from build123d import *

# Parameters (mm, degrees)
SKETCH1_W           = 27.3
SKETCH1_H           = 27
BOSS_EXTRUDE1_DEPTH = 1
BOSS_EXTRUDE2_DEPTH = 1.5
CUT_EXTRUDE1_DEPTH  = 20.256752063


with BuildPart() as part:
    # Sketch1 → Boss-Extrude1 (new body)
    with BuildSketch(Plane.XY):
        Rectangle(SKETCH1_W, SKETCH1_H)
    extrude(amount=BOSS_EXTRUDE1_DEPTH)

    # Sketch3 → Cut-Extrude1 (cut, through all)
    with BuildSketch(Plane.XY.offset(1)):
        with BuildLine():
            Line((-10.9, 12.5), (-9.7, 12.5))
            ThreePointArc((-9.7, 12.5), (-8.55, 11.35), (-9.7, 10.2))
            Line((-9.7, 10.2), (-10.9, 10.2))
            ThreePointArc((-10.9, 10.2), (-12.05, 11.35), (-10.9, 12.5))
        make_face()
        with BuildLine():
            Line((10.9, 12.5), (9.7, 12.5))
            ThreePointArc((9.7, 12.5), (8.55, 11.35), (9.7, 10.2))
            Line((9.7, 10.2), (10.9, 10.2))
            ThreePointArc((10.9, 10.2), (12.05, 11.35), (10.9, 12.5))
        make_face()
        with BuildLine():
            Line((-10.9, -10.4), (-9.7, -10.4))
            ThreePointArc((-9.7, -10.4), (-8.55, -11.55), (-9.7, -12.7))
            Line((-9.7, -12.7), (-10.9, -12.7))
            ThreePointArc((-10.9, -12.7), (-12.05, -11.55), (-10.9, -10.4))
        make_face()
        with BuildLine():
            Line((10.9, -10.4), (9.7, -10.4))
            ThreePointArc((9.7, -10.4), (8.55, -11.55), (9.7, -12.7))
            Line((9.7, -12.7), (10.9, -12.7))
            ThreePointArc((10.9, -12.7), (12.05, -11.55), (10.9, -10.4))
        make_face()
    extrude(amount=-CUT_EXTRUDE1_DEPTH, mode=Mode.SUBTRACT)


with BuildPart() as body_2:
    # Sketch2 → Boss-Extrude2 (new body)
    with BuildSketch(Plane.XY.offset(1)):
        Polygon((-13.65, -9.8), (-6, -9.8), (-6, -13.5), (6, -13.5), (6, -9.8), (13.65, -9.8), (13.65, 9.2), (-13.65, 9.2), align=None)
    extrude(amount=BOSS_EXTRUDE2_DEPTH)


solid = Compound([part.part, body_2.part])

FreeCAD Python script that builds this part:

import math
import FreeCAD as App
import Part
import Sketcher
from FreeCAD import Vector
Q = App.Units.Quantity


def add_polygon(sketch, points):
    """Adds a closed chain of lines whose ends are joined by coincident constraints."""
    first, n = sketch.GeometryCount, len(points)
    for a, b in zip(points, points[1:] + points[:1]):
        sketch.addGeometry(Part.LineSegment(App.Vector(*a, 0), App.Vector(*b, 0)), False)
    for i in range(n):
        sketch.addConstraint(Sketcher.Constraint("Coincident", first + i, 2, first + (i + 1) % n, 1))

doc = App.newDocument("Part")
params = doc.addObject("Spreadsheet::Sheet", "Params")
for row, (alias, value) in enumerate([
    ("sketch1_height", "27 mm"),
    ("sketch1_width", "27.3 mm"),
    ("pad1_length", "1 mm"),
    ("sketch2_radius", "1.15 mm"),
    ("sketch2_width", "1.2 mm"),
    ("sketch3_width", "12 mm"),
    ("sketch3_height", "19 mm"),
    ("sketch3_width2", "27.3 mm"),
    ("sketch3_height2", "3.7 mm"),
    ("pad2_length", "1.5 mm"),
], start=1):
    params.set(f"A{row}", alias)
    params.set(f"B{row}", "=" + value)
    params.setAlias(f"B{row}", alias)

body = doc.addObject("PartDesign::Body", "Body")

# Sketch on XY plane
sketch1 = body.newObject("Sketcher::SketchObject", "Sketch")
sketch1.AttachmentSupport = (doc.getObject("XY_Plane"), [""])
sketch1.MapMode = "FlatFace"
add_polygon(sketch1, [(-14, 14), (-14, -14), (14, -14), (14, 14)])  # lines 0-3
sketch1.addConstraint([
    Sketcher.Constraint("Vertical", 0),
    Sketcher.Constraint("Horizontal", 1),
    Sketcher.Constraint("Vertical", 2),
    Sketcher.Constraint("Horizontal", 3),
    Sketcher.Constraint("Symmetric", 0, 2, 2, 2, -1, 1),
    Sketcher.Constraint("DistanceY", 0, 2, 0, 1, Q("27 mm")),
    Sketcher.Constraint("DistanceX", 1, 1, 1, 2, Q("27.3 mm")),
])
sketch1.setExpression("Constraints[9]", "Params.sketch1_height")
sketch1.setExpression("Constraints[10]", "Params.sketch1_width")
pad1 = body.newObject("PartDesign::Pad", "Pad")
pad1.Profile = sketch1
pad1.setExpression("Length", "Params.pad1_length")

# Sketch on XY plane
sketch2 = body.newObject("Sketcher::SketchObject", "Sketch001")
sketch2.AttachmentSupport = (doc.getObject("XY_Plane"), [""])
sketch2.MapMode = "FlatFace"
sketch2.AttachmentOffset = App.Placement(Vector(0, 0, 1), App.Rotation())
sketch2.addGeometry([
    Part.LineSegment(Vector(-9.7, 12.5, 0), Vector(-10.9, 12.5, 0)),  # 0
    Part.ArcOfCircle(Part.Circle(Vector(-10.9, 11.3, 0), Vector(0, 0, 1), 1.1), math.radians(90), math.radians(270)),  # 1
    Part.LineSegment(Vector(-10.9, 10.2, 0), Vector(-9.7, 10.2, 0)),  # 2
    Part.ArcOfCircle(Part.Circle(Vector(-9.7, 11.3, 0), Vector(0, 0, 1), 1.1), math.radians(-90), math.radians(90)),  # 3
    Part.LineSegment(Vector(10.9, 12.5, 0), Vector(9.7, 12.5, 0)),  # 4
    Part.ArcOfCircle(Part.Circle(Vector(9.7, 11.3, 0), Vector(0, 0, 1), 1.1), math.radians(90), math.radians(270)),  # 5
    Part.LineSegment(Vector(9.7, 10.2, 0), Vector(10.9, 10.2, 0)),  # 6
    Part.ArcOfCircle(Part.Circle(Vector(10.9, 11.3, 0), Vector(0, 0, 1), 1.1), math.radians(-90), math.radians(90)),  # 7
    Part.LineSegment(Vector(-9.7, -10.4, 0), Vector(-10.9, -10.4, 0)),  # 8
    Part.ArcOfCircle(Part.Circle(Vector(-10.9, -11.6, 0), Vector(0, 0, 1), 1.1), math.radians(90), math.radians(270)),  # 9
    Part.LineSegment(Vector(-10.9, -12.7, 0), Vector(-9.7, -12.7, 0)),  # 10
    Part.ArcOfCircle(Part.Circle(Vector(-9.7, -11.6, 0), Vector(0, 0, 1), 1.1), math.radians(-90), math.radians(90)),  # 11
    Part.LineSegment(Vector(10.9, -10.4, 0), Vector(9.7, -10.4, 0)),  # 12
    Part.ArcOfCircle(Part.Circle(Vector(9.7, -11.6, 0), Vector(0, 0, 1), 1.1), math.radians(90), math.radians(270)),  # 13
    Part.LineSegment(Vector(9.7, -12.7, 0), Vector(10.9, -12.7, 0)),  # 14
    Part.ArcOfCircle(Part.Circle(Vector(10.9, -11.6, 0), Vector(0, 0, 1), 1.1), math.radians(-90), math.radians(90)),  # 15
], False)
sketch2.addConstraint([
    Sketcher.Constraint("Tangent", 0, 2, 1, 1),
    Sketcher.Constraint("Tangent", 1, 2, 2, 1),
    Sketcher.Constraint("Tangent", 2, 2, 3, 1),
    Sketcher.Constraint("Tangent", 3, 2, 0, 1),
    Sketcher.Constraint("Tangent", 4, 2, 5, 1),
    Sketcher.Constraint("Tangent", 5, 2, 6, 1),
    Sketcher.Constraint("Tangent", 6, 2, 7, 1),
    Sketcher.Constraint("Tangent", 7, 2, 4, 1),
    Sketcher.Constraint("Tangent", 8, 2, 9, 1),
    Sketcher.Constraint("Tangent", 9, 2, 10, 1),
    Sketcher.Constraint("Tangent", 10, 2, 11, 1),
    Sketcher.Constraint("Tangent", 11, 2, 8, 1),
    Sketcher.Constraint("Tangent", 12, 2, 13, 1),
    Sketcher.Constraint("Tangent", 13, 2, 14, 1),
    Sketcher.Constraint("Tangent", 14, 2, 15, 1),
    Sketcher.Constraint("Tangent", 15, 2, 12, 1),
    Sketcher.Constraint("Horizontal", 0),
    Sketcher.Constraint("Horizontal", 2),
    Sketcher.Constraint("Horizontal", 4),
    Sketcher.Constraint("Horizontal", 6),
    Sketcher.Constraint("Horizontal", 8),
    Sketcher.Constraint("Horizontal", 10),
    Sketcher.Constraint("Horizontal", 12),
    Sketcher.Constraint("Horizontal", 14),
    Sketcher.Constraint("Equal", 3, 5),
    Sketcher.Constraint("Equal", 7, 9),
    Sketcher.Constraint("Equal", 11, 13),
    Sketcher.Constraint("Symmetric", 3, 3, 5, 3, -2),
    Sketcher.Constraint("Symmetric", 11, 3, 13, 3, -2),
    Sketcher.Constraint("Vertical", 1, 3, 9, 3),
    Sketcher.Constraint("Vertical", 3, 3, 11, 3),
    Sketcher.Constraint("Vertical", 7, 3, 15, 3),
    Sketcher.Constraint("Equal", 2, 4),
    Sketcher.Constraint("Radius", 1, Q("1.15 mm")),
    Sketcher.Constraint("DistanceX", 0, 2, 0, 1, Q("1.2 mm")),
    Sketcher.Constraint("DistanceX", 1, 3, -1, 1, Q("10.9 mm")),
    Sketcher.Constraint("DistanceY", -1, 1, 0, 2, Q("12.5 mm")),
    Sketcher.Constraint("DistanceY", 8, 2, -1, 1, Q("10.4 mm")),
])
sketch2.setExpression("Constraints[33]", "Params.sketch2_radius")
sketch2.setExpression("Constraints[34]", "Params.sketch2_width")
pocket1 = body.newObject("PartDesign::Pocket", "Pocket")
pocket1.Profile = sketch2
pocket1.Type = "ThroughAll"
body2 = doc.addObject("PartDesign::Body", "Body001")

# Sketch on XY plane
sketch3 = body2.newObject("Sketcher::SketchObject", "Sketch002")
sketch3.AttachmentSupport = (doc.getObject("XY_Plane001"), [""])
sketch3.MapMode = "FlatFace"
sketch3.AttachmentOffset = App.Placement(Vector(0, 0, 1), App.Rotation())
add_polygon(sketch3, [(-13.7, -9.8), (-6, -9.8), (-6, -13.5), (6, -13.5), (6, -9.8), (13.7, -9.8), (13.7, 9.2), (-13.7, 9.2)])  # lines 0-7
sketch3.addConstraint([
    Sketcher.Constraint("Horizontal", 0),
    Sketcher.Constraint("Vertical", 1),
    Sketcher.Constraint("Horizontal", 2),
    Sketcher.Constraint("Vertical", 3),
    Sketcher.Constraint("Horizontal", 4),
    Sketcher.Constraint("Vertical", 5),
    Sketcher.Constraint("Horizontal", 6),
    Sketcher.Constraint("Vertical", 7),
    Sketcher.Constraint("Symmetric", 0, 2, 3, 2, -2),
    Sketcher.Constraint("Equal", 0, 4),
    Sketcher.Constraint("DistanceX", 2, 1, 2, 2, Q("12 mm")),
    Sketcher.Constraint("DistanceY", 5, 1, 5, 2, Q("19 mm")),
    Sketcher.Constraint("DistanceX", 6, 2, 6, 1, Q("27.3 mm")),
    Sketcher.Constraint("DistanceY", 1, 2, 1, 1, Q("3.7 mm")),
    Sketcher.Constraint("DistanceY", 0, 2, -1, 1, Q("9.8 mm")),
])
sketch3.setExpression("Constraints[18]", "Params.sketch3_width")
sketch3.setExpression("Constraints[19]", "Params.sketch3_height")
sketch3.setExpression("Constraints[20]", "Params.sketch3_width2")
sketch3.setExpression("Constraints[21]", "Params.sketch3_height2")
pad2 = body2.newObject("PartDesign::Pad", "Pad001")
pad2.Profile = sketch3
pad2.setExpression("Length", "Params.pad2_length")

doc.recompute()
